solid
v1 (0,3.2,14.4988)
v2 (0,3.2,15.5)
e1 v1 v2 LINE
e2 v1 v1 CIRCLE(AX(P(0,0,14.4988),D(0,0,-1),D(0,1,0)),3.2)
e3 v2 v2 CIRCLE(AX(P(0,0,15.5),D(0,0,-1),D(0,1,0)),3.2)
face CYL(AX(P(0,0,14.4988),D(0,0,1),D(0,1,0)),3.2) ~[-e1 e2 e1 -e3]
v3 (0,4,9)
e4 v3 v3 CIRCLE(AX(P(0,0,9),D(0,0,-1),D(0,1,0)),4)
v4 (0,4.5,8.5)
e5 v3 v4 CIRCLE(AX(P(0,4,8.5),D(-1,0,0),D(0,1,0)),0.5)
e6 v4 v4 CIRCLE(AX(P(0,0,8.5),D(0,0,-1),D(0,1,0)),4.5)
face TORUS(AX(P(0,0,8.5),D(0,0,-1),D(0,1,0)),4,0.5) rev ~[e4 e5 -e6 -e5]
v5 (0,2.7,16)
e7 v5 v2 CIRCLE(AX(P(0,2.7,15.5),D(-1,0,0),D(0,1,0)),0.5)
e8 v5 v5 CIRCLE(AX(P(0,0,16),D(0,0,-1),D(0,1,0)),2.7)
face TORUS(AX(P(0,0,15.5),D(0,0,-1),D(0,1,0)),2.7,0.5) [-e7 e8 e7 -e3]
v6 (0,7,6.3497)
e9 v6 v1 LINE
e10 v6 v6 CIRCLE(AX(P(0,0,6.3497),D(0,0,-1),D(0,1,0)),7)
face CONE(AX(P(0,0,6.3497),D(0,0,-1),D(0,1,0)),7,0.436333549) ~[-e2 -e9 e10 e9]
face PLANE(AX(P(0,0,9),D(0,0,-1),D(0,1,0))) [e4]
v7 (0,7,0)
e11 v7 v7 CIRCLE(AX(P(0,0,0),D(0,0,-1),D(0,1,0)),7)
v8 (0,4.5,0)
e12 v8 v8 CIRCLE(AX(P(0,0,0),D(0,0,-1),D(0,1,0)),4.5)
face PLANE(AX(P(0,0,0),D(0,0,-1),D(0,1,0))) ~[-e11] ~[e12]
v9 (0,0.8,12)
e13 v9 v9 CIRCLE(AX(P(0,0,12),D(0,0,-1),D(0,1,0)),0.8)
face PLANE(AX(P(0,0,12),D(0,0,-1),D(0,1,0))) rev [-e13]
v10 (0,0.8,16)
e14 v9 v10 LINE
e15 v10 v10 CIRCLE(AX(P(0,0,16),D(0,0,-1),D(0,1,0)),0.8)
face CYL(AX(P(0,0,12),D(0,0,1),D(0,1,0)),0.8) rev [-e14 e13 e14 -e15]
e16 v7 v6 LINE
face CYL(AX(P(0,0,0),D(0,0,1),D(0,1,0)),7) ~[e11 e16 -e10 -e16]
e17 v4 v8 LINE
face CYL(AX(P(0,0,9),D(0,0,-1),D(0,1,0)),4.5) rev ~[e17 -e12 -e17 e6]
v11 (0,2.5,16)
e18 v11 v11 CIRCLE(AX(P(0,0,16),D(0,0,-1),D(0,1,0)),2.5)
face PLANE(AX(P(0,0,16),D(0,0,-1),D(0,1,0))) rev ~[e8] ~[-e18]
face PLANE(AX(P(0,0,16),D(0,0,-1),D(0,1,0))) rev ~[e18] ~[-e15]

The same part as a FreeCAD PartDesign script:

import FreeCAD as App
import Part
import Sketcher
from FreeCAD import Vector
Q = App.Units.Quantity


def edges_at(feature, points):
    """Names of the edges that pass closest to the given points."""
    edges = feature.Shape.Edges
    near = lambda p: min(range(len(edges)), key=lambda i: edges[i].distToShape(Part.Vertex(*p))[0])
    return sorted({f"Edge{near(p) + 1}" for p in points})


def add_polygon(sketch, points):
    """Adds a closed chain of lines whose ends are joined by coincident constraints."""
    first, n = sketch.GeometryCount, len(points)
    for a, b in zip(points, points[1:] + points[:1]):
        sketch.addGeometry(Part.LineSegment(App.Vector(*a, 0), App.Vector(*b, 0)), False)
    for i in range(n):
        sketch.addConstraint(Sketcher.Constraint("Coincident", first + i, 2, first + (i + 1) % n, 1))

doc = App.newDocument("Part")
body = doc.addObject("PartDesign::Body", "Body")

# Sketch on YZ plane
sketch1 = doc.addObject("Sketcher::SketchObject", "Sketch")
body.addObject(sketch1)
sketch1.AttachmentSupport = (doc.YZ_Plane, [""])
sketch1.MapMode = "FlatFace"
add_polygon(sketch1, [(0, 9), (4.5, 9), (4.5, 0), (7, 0), (7, 6.3), (3.2, 14.5), (3.2, 16), (0.8, 16), (0.8, 12), (0, 12)])  # lines 0-9
sketch1.addConstraint(Sketcher.Constraint("Horizontal", 0))
sketch1.addConstraint(Sketcher.Constraint("Vertical", 1))
sketch1.addConstraint(Sketcher.Constraint("Horizontal", 2))
sketch1.addConstraint(Sketcher.Constraint("Vertical", 3))
sketch1.addConstraint(Sketcher.Constraint("Vertical", 5))
sketch1.addConstraint(Sketcher.Constraint("Horizontal", 6))
sketch1.addConstraint(Sketcher.Constraint("Vertical", 7))
sketch1.addConstraint(Sketcher.Constraint("Horizontal", 8))
sketch1.addConstraint(Sketcher.Constraint("Vertical", 9))
sketch1.addConstraint(Sketcher.Constraint("PointOnObject", 1, 2, -1))
sketch1.addConstraint(Sketcher.Constraint("PointOnObject", 8, 2, -2))
sketch1.addConstraint(Sketcher.Constraint("DistanceY", 1, 2, 1, 1, Q("9 mm")))
sketch1.addConstraint(Sketcher.Constraint("DistanceY", 7, 2, 7, 1, Q("4 mm")))
sketch1.addConstraint(Sketcher.Constraint("Angle", 4, Q("115 deg")))
sketch1.addConstraint(Sketcher.Constraint("DistanceX", 0, 1, 0, 2, Q("4.5 mm")))
sketch1.addConstraint(Sketcher.Constraint("DistanceX", 2, 1, 2, 2, Q("2.5 mm")))
sketch1.addConstraint(Sketcher.Constraint("DistanceX", 8, 2, 8, 1, Q("0.8 mm")))
sketch1.addConstraint(Sketcher.Constraint("DistanceY", -1, 1, 5, 2, Q("16 mm")))
sketch1.addConstraint(Sketcher.Constraint("DistanceX", -1, 1, 4, 2, Q("3.2 mm")))
sketch1.addConstraint(Sketcher.Constraint("DistanceY", 5, 1, 5, 2, Q("1.5012 mm")))
revolution = doc.addObject("PartDesign::Revolution", "Revolution")
body.addObject(revolution)
revolution.Profile = sketch1
revolution.ReferenceAxis = (sketch1, ["V_Axis"])
revolution.Angle = 360
doc.recompute()

fillet = doc.addObject("PartDesign::Fillet", "Fillet")
body.addObject(fillet)
fillet.Base = (revolution, edges_at(revolution, [(0, -3.2, 16), (0, -4.5, 9)]))
fillet.Radius = 0.5

doc.recompute()
